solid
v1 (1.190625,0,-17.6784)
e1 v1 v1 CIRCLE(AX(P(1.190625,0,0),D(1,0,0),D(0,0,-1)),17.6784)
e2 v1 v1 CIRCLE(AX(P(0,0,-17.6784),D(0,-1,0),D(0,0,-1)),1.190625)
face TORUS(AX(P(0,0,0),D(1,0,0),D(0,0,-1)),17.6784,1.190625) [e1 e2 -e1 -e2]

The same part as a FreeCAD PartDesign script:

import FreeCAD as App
import Part
import Sketcher
from FreeCAD import Vector
Q = App.Units.Quantity

doc = App.newDocument("Part")
body = doc.addObject("PartDesign::Body", "Body")

sketch1 = body.newObject("Sketcher::SketchObject", "Sketch")
sketch1.AttachmentSupport = (doc.getObject("XY_Plane"), [""])
sketch1.MapMode = "FlatFace"
sketch1.addGeometry(Part.Circle(Vector(0, -17.7, 0), Vector(0, 0, 1), 1.2), False)
sketch1.addConstraint([
    Sketcher.Constraint("PointOnObject", 0, 3, -2),
    Sketcher.Constraint("Diameter", 0, Q("0.09375 in")),
    Sketcher.Constraint("DistanceY", 0, 3, -1, 1, Q("0.696 in")),
])

sketch2 = body.newObject("Sketcher::SketchObject", "Sketch001")
sketch2.AttachmentSupport = (doc.getObject("YZ_Plane"), [""])
sketch2.MapMode = "FlatFace"
sketch2.addGeometry(Part.Circle(Vector(0, 0, 0), Vector(0, 0, 1), 18), False)
sketch2.addConstraint([
    Sketcher.Constraint("Coincident", 0, 3, -1, 1),
    Sketcher.Constraint("Diameter", 0, Q("1.392 in")),
])
doc.recompute()

additivepipe = body.newObject("PartDesign::AdditivePipe", "AdditivePipe")
additivepipe.Profile = sketch1
additivepipe.Spine = (sketch2, ["Edge1"])

doc.recompute()
